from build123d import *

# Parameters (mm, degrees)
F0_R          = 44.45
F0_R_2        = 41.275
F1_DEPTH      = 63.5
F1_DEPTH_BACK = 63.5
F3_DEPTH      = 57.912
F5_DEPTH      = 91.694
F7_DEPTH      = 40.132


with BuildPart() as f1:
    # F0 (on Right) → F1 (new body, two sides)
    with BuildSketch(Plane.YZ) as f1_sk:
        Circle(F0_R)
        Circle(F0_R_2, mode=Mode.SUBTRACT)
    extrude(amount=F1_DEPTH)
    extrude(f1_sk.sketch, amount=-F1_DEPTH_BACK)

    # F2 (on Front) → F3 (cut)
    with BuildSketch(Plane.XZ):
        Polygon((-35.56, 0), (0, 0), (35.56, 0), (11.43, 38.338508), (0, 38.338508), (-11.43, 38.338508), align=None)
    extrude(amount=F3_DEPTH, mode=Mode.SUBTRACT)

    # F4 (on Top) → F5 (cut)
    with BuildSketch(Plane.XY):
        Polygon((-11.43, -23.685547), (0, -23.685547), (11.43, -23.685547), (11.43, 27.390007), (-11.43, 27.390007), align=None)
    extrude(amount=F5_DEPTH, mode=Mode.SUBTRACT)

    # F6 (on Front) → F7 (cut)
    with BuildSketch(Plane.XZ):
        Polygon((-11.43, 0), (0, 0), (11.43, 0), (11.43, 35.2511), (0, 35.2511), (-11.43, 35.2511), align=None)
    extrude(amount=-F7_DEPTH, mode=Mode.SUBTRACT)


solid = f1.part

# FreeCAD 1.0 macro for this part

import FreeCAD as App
import Part
import Sketcher

V = App.Vector
Q = App.Units.Quantity

doc = App.newDocument("Part")
body = doc.addObject("PartDesign::Body", "Body")

# Sketch on YZ plane
sketch1 = body.newObject("Sketcher::SketchObject", "Sketch")
sketch1.AttachmentSupport = (doc.getObject("YZ_Plane"), [""])
sketch1.MapMode = "FlatFace"
sketch1.addGeometry([
    Part.Circle(V(0, 0, 0), V(0, 0, 1), 44),
    Part.Circle(V(0, 0, 0), V(0, 0, 1), 41),
], False)
sketch1.addConstraint([
    Sketcher.Constraint("Coincident", 0, 3, -1, 1),
    Sketcher.Constraint("Coincident", 1, 3, -1, 1),
    Sketcher.Constraint("Diameter", 0, Q("3.5 in")),
    Sketcher.Constraint("Diameter", 1, Q("3.25 in")),
])
pad1 = body.newObject("PartDesign::Pad", "Pad")
pad1.Profile = sketch1
pad1.Type = "TwoLengths"
pad1.Length = Q("2.5 in")
pad1.Length2 = Q("2.5 in")

# Sketch on XZ plane
sketch2 = body.newObject("Sketcher::SketchObject", "Sketch001")
sketch2.AttachmentSupport = (doc.getObject("XZ_Plane"), [""])
sketch2.MapMode = "FlatFace"
sketch2.addGeometry([
    Part.LineSegment(V(-36, 0, 0), V(36, 0, 0)),
    Part.LineSegment(V(36, 0, 0), V(11, 38, 0)),
    Part.LineSegment(V(11, 38, 0), V(-11, 38, 0)),
    Part.LineSegment(V(-11, 38, 0), V(-36, 0, 0)),
], False)
sketch2.addConstraint([
    Sketcher.Constraint("Coincident", 0, 2, 1, 1),
    Sketcher.Constraint("Coincident", 1, 2, 2, 1),
    Sketcher.Constraint("Coincident", 2, 2, 3, 1),
    Sketcher.Constraint("Coincident", 3, 2, 0, 1),
    Sketcher.Constraint("Horizontal", 0),
    Sketcher.Constraint("Horizontal", 2),
    Sketcher.Constraint("Symmetric", 0, 2, 3, 2, -1, 1),
    Sketcher.Constraint("Equal", 1, 3),
    Sketcher.Constraint("DistanceX", 0, 1, 0, 2, Q("2.8 in")),
    Sketcher.Constraint("DistanceX", 2, 2, 2, 1, Q("0.9 in")),
    Sketcher.Constraint("Distance", 1, Q("45.300089 mm")),
])
pocket1 = body.newObject("PartDesign::Pocket", "Pocket")
pocket1.Profile = sketch2
pocket1.Length = Q("2.28 in")
pocket1.Reversed = True

# Sketch on XY plane
sketch3 = body.newObject("Sketcher::SketchObject", "Sketch002")
sketch3.AttachmentSupport = (doc.getObject("XY_Plane"), [""])
sketch3.MapMode = "FlatFace"
sketch3.addGeometry([
    Part.LineSegment(V(-11, -24, 0), V(11, -24, 0)),
    Part.LineSegment(V(11, -24, 0), V(11, 27, 0)),
    Part.LineSegment(V(11, 27, 0), V(-11, 27, 0)),
    Part.LineSegment(V(-11, 27, 0), V(-11, -24, 0)),
], False)
sketch3.addConstraint([
    Sketcher.Constraint("Coincident", 0, 2, 1, 1),
    Sketcher.Constraint("Coincident", 1, 2, 2, 1),
    Sketcher.Constraint("Coincident", 2, 2, 3, 1),
    Sketcher.Constraint("Coincident", 3, 2, 0, 1),
    Sketcher.Constraint("Horizontal", 0),
    Sketcher.Constraint("Vertical", 1),
    Sketcher.Constraint("Horizontal", 2),
    Sketcher.Constraint("Vertical", 3),
    Sketcher.Constraint("DistanceX", 0, 1, 0, 2, Q("0.9 in")),
    Sketcher.Constraint("DistanceX", -1, 1, 0, 2, Q("0.45 in")),
    Sketcher.Constraint("DistanceY", 1, 1, 1, 2, Q("51.075554 mm")),
    Sketcher.Constraint("DistanceY", 0, 2, -1, 1, Q("23.685547 mm")),
])
pocket2 = body.newObject("PartDesign::Pocket", "Pocket001")
pocket2.Profile = sketch3
pocket2.Length = Q("3.61 in")
pocket2.Reversed = True

# Sketch on XZ plane
sketch4 = body.newObject("Sketcher::SketchObject", "Sketch003")
sketch4.AttachmentSupport = (doc.getObject("XZ_Plane"), [""])
sketch4.MapMode = "FlatFace"
sketch4.addGeometry([
    Part.LineSegment(V(-11, 0, 0), V(11, 0, 0)),
    Part.LineSegment(V(11, 0, 0), V(11, 35, 0)),
    Part.LineSegment(V(11, 35, 0), V(-11, 35, 0)),
    Part.LineSegment(V(-11, 35, 0), V(-11, 0, 0)),
], False)
sketch4.addConstraint([
    Sketcher.Constraint("Coincident", 0, 2, 1, 1),
    Sketcher.Constraint("Coincident", 1, 2, 2, 1),
    Sketcher.Constraint("Coincident", 2, 2, 3, 1),
    Sketcher.Constraint("Coincident", 3, 2, 0, 1),
    Sketcher.Constraint("Horizontal", 0),
    Sketcher.Constraint("Vertical", 1),
    Sketcher.Constraint("Horizontal", 2),
    Sketcher.Constraint("Vertical", 3),
    Sketcher.Constraint("Symmetric", 0, 2, 3, 2, -1, 1),
    Sketcher.Constraint("DistanceX", 0, 1, 0, 2, Q("0.9 in")),
    Sketcher.Constraint("DistanceY", 1, 1, 1, 2, Q("35.2511 mm")),
])
pocket3 = body.newObject("PartDesign::Pocket", "Pocket002")
pocket3.Profile = sketch4
pocket3.Length = Q("1.58 in")

doc.recompute()
